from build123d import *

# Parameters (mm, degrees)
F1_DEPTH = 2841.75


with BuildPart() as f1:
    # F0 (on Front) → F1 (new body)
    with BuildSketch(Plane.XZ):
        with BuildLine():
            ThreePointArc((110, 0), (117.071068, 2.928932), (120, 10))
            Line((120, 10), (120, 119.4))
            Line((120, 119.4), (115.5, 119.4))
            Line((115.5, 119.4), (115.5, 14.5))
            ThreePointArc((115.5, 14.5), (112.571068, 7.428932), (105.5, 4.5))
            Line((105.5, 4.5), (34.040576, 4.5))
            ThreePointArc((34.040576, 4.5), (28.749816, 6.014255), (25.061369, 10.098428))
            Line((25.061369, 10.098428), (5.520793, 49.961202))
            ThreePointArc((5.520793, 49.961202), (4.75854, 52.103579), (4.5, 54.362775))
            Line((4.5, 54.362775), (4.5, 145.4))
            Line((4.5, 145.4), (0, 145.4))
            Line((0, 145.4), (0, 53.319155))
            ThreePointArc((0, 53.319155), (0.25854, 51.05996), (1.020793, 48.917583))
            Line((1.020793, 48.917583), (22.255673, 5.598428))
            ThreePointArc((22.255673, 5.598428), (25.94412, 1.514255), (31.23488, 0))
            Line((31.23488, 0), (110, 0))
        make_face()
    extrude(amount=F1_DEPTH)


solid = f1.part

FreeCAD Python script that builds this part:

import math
import FreeCAD as App
import Part
import Sketcher
from FreeCAD import Vector

doc = App.newDocument("Part")
body = doc.addObject("PartDesign::Body", "Body")

# Sketch on XZ plane
sketch1 = body.newObject("Sketcher::SketchObject", "Sketch")
sketch1.AttachmentSupport = (doc.getObject("XZ_Plane"), [""])
sketch1.MapMode = "FlatFace"
sketch1.addGeometry([
    Part.ArcOfCircle(Part.Circle(Vector(110, 10, 0), Vector(0, 0, 1), 10), math.radians(-90), math.radians(0)),  # 0
    Part.LineSegment(Vector(120, 10, 0), Vector(120, 119.4, 0)),  # 1
    Part.LineSegment(Vector(120, 119.4, 0), Vector(115.5, 119.4, 0)),  # 2
    Part.LineSegment(Vector(115.5, 119.4, 0), Vector(115.5, 14.5, 0)),  # 3
    Part.ArcOfCircle(Part.Circle(Vector(105.5, 14.5, 0), Vector(0, 0, 1), 10), math.radians(-90), math.radians(0)),  # 4
    Part.LineSegment(Vector(105.5, 4.5, 0), Vector(34, 4.5, 0)),  # 5
    Part.ArcOfCircle(Part.Circle(Vector(34, 14.5, 0), Vector(0, 0, 1), 10), math.radians(-154), math.radians(-90)),  # 6
    Part.LineSegment(Vector(25.1, 10.1, 0), Vector(5.5, 50, 0)),  # 7
    Part.ArcOfCircle(Part.Circle(Vector(14.5, 54.4, 0), Vector(0, 0, 1), 10), math.radians(180), math.radians(206)),  # 8
    Part.LineSegment(Vector(4.5, 54.4, 0), Vector(4.5, 145.4, 0)),  # 9
    Part.LineSegment(Vector(4.5, 145.4, 0), Vector(0, 145.4, 0)),  # 10
    Part.LineSegment(Vector(0, 145.4, 0), Vector(0, 53.3, 0)),  # 11
    Part.ArcOfCircle(Part.Circle(Vector(10, 53.3, 0), Vector(0, 0, 1), 10), math.radians(180), math.radians(206)),  # 12
    Part.LineSegment(Vector(1, 48.9, 0), Vector(22.3, 5.6, 0)),  # 13
    Part.ArcOfCircle(Part.Circle(Vector(31.2, 10, 0), Vector(0, 0, 1), 10), math.radians(-154), math.radians(-90)),  # 14
    Part.LineSegment(Vector(31.2, 0, 0), Vector(110, 0, 0)),  # 15
], False)
sketch1.addConstraint([
    Sketcher.Constraint("Tangent", 0, 2, 1, 1),
    Sketcher.Constraint("Coincident", 1, 2, 2, 1),
    Sketcher.Constraint("Coincident", 2, 2, 3, 1),
    Sketcher.Constraint("Tangent", 3, 2, 4, 2),
    Sketcher.Constraint("Tangent", 4, 1, 5, 1),
    Sketcher.Constraint("Tangent", 5, 2, 6, 2),
    Sketcher.Constraint("Tangent", 6, 1, 7, 1),
    Sketcher.Constraint("Tangent", 7, 2, 8, 2),
    Sketcher.Constraint("Tangent", 8, 1, 9, 1),
    Sketcher.Constraint("Coincident", 9, 2, 10, 1),
    Sketcher.Constraint("Coincident", 10, 2, 11, 1),
    Sketcher.Constraint("Tangent", 11, 2, 12, 1),
    Sketcher.Constraint("Tangent", 12, 2, 13, 1),
    Sketcher.Constraint("Tangent", 13, 2, 14, 1),
    Sketcher.Constraint("Tangent", 14, 2, 15, 1),
    Sketcher.Constraint("Tangent", 15, 2, 0, 1),
    Sketcher.Constraint("Vertical", 1),
    Sketcher.Constraint("Horizontal", 2),
    Sketcher.Constraint("Vertical", 3),
    Sketcher.Constraint("Horizontal", 5),
    Sketcher.Constraint("Vertical", 9),
    Sketcher.Constraint("Horizontal", 10),
    Sketcher.Constraint("Vertical", 11),
    Sketcher.Constraint("Horizontal", 15),
    Sketcher.Constraint("Equal", 0, 4),
    Sketcher.Constraint("Equal", 8, 12),
    Sketcher.Constraint("Equal", 6, 14),
    Sketcher.Constraint("PointOnObject", 10, 2, -2),
    Sketcher.Constraint("PointOnObject", 14, 2, -1),
    Sketcher.Constraint("Parallel", 7, 13),
    Sketcher.Constraint("Equal", 2, 10),
    Sketcher.Constraint("Radius", 0, 9.999999),
    Sketcher.Constraint("DistanceX", 2, 2, 2, 1, 4.5),
    Sketcher.Constraint("DistanceY", 1, 1, 1, 2, 109.4),
    Sketcher.Constraint("DistanceY", 3, 2, 3, 1, 104.9),
    Sketcher.Constraint("DistanceX", -1, 1, 0, 3, 110.000001),
    Sketcher.Constraint("DistanceY", 2, 2, 9, 2, 26.0),
    Sketcher.Constraint("Radius", 6, 9.999996),
    Sketcher.Constraint("Radius", 8, 9.999985),
    Sketcher.Constraint("DistanceX", 15, 1, 15, 2, 78.76512),
    Sketcher.Constraint("DistanceY", 7, 2, 9, 2, 95.438798),
    Sketcher.Constraint("DistanceX", 13, 2, 6, 3, 11.784901),
])
pad1 = body.newObject("PartDesign::Pad", "Pad")
pad1.Profile = sketch1
pad1.Length = 2841.75

doc.recompute()
